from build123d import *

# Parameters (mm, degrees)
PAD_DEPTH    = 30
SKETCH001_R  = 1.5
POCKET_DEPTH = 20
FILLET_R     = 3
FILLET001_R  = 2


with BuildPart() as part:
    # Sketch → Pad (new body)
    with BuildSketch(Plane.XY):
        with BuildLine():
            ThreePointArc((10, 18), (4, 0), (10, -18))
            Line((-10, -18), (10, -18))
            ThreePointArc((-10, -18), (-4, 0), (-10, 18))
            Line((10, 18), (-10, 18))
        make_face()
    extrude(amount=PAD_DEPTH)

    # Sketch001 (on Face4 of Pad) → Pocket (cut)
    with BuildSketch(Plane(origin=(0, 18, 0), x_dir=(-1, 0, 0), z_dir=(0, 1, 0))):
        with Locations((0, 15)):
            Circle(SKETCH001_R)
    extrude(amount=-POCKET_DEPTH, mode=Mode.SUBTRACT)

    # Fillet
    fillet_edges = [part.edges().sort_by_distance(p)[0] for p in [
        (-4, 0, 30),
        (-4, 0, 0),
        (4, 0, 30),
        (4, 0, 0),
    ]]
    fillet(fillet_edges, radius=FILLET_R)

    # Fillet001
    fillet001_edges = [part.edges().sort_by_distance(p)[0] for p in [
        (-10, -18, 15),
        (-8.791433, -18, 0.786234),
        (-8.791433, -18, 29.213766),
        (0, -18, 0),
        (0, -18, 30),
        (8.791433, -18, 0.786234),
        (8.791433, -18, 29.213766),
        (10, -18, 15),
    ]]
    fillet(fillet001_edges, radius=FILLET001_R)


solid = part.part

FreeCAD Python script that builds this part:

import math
import FreeCAD as App
import Part
import Sketcher


def edges_at(feature, points):
    """Names of the edges that pass closest to the given points."""
    edges = feature.Shape.Edges
    near = lambda p: min(range(len(edges)), key=lambda i: edges[i].distToShape(Part.Vertex(*p))[0])
    return sorted({f"Edge{near(p) + 1}" for p in points})

doc = App.newDocument("Part")
body = doc.addObject("PartDesign::Body", "Body")

sketch1 = doc.addObject("Sketcher::SketchObject", "Sketch")
body.addObject(sketch1)
sketch1.AttachmentSupport = (doc.XY_Plane, [""])
sketch1.MapMode = "FlatFace"
sketch1.addGeometry([
    Part.ArcOfCircle(Part.Circle(App.Vector(34, 0, 0), App.Vector(0, 0, 1), 30), math.radians(143), math.radians(217)),
    Part.LineSegment(App.Vector(10, 18, 0), App.Vector(-10, 18, 0)),
    Part.ArcOfCircle(Part.Circle(App.Vector(-34, 0, 0), App.Vector(0, 0, 1), 30), math.radians(-37), math.radians(37)),
    Part.LineSegment(App.Vector(-10, -18, 0), App.Vector(10, -18, 0)),
], False)
sketch1.addConstraint([
    Sketcher.Constraint("Coincident", 0, 1, 1, 1),
    Sketcher.Constraint("Coincident", 1, 2, 2, 2),
    Sketcher.Constraint("Coincident", 2, 1, 3, 1),
    Sketcher.Constraint("Coincident", 3, 2, 0, 2),
    Sketcher.Constraint("Horizontal", 1),
    Sketcher.Constraint("Horizontal", 3),
    Sketcher.Constraint("Equal", 0, 2),
    Sketcher.Constraint("Symmetric", 0, 3, 2, 3, -1, 1),
    Sketcher.Constraint("Symmetric", 1, 2, 2, 1, -1),
    Sketcher.Constraint("Radius", 0, 30.0),
    Sketcher.Constraint("DistanceX", 1, 2, 1, 1, 20.0),
    Sketcher.Constraint("DistanceX", -1, 1, 0, 3, 34.0),
])
pad1 = doc.addObject("PartDesign::Pad", "Pad")
body.addObject(pad1)
pad1.Profile = sketch1
pad1.Length = 30

sketch2 = doc.addObject("Sketcher::SketchObject", "Sketch001")
body.addObject(sketch2)
sketch2.AttachmentSupport = (doc.XZ_Plane, [""])
sketch2.MapMode = "FlatFace"
sketch2.AttachmentOffset = App.Placement(App.Vector(0, 0, -18), App.Rotation())
sketch2.addGeometry(Part.Circle(App.Vector(0, 15, 0), App.Vector(0, 0, 1), 1.5), False)
sketch2.addConstraint([
    Sketcher.Constraint("PointOnObject", 0, 3, -2),
    Sketcher.Constraint("Diameter", 0, 3.0),
    Sketcher.Constraint("DistanceY", -1, 1, 0, 3, 15.0),
])
pocket1 = doc.addObject("PartDesign::Pocket", "Pocket")
body.addObject(pocket1)
pocket1.Profile = sketch2
pocket1.Length = 20
pocket1.Reversed = True
doc.recompute()

fillet = doc.addObject("PartDesign::Fillet", "Fillet")
body.addObject(fillet)
fillet.Base = (pocket1, edges_at(pocket1, [
    (-4, 0, 30),
    (-4, 0, 0),
    (4, 0, 30),
    (4, 0, 0),
]))
fillet.Radius = 3
doc.recompute()

fillet2 = doc.addObject("PartDesign::Fillet", "Fillet001")
body.addObject(fillet2)
fillet2.Base = (fillet, edges_at(fillet, [
    (-10, -18, 15),
    (-8.791, -18, 0.786),
    (-8.791, -18, 29.214),
    (0, -18, 0),
    (0, -18, 30),
    (8.791, -18, 0.786),
    (8.791, -18, 29.214),
    (10, -18, 15),
]))
fillet2.Radius = 2

doc.recompute()
